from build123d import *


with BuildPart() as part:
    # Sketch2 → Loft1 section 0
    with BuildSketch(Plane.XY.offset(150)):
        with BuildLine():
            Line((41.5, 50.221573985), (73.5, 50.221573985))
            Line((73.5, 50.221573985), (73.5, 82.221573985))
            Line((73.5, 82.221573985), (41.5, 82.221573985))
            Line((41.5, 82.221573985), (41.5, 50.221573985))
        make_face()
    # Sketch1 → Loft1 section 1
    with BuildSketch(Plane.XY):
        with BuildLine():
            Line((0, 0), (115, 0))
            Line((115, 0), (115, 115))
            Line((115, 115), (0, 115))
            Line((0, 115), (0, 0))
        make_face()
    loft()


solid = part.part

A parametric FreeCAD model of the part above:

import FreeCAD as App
import Part
import Sketcher
Q = App.Units.Quantity


def add_polygon(sketch, points):
    """Adds a closed chain of lines whose ends are joined by coincident constraints."""
    first, n = sketch.GeometryCount, len(points)
    for a, b in zip(points, points[1:] + points[:1]):
        sketch.addGeometry(Part.LineSegment(App.Vector(*a, 0), App.Vector(*b, 0)), False)
    for i in range(n):
        sketch.addConstraint(Sketcher.Constraint("Coincident", first + i, 2, first + (i + 1) % n, 1))

doc = App.newDocument("Part")
body = doc.addObject("PartDesign::Body", "Body")

# Sketch on XY plane
sketch1 = doc.addObject("Sketcher::SketchObject", "Sketch")
body.addObject(sketch1)
sketch1.AttachmentSupport = (doc.XY_Plane, [""])
sketch1.MapMode = "FlatFace"
sketch1.AttachmentOffset = App.Placement(App.Vector(0, 0, 150), App.Rotation())
add_polygon(sketch1, [(41.5, 50.221574), (73.5, 50.221574), (73.5, 82.221574), (41.5, 82.221574)])  # lines 0-3
sketch1.addConstraint([
    Sketcher.Constraint("Horizontal", 0),
    Sketcher.Constraint("Vertical", 1),
    Sketcher.Constraint("Horizontal", 2),
    Sketcher.Constraint("Vertical", 3),
    Sketcher.Constraint("Equal", 2, 1),
    Sketcher.Constraint("DistanceX", 0, 1, 0, 2, Q("32 mm")),
    Sketcher.Constraint("DistanceX", -1, 1, 0, 2, Q("73.5 mm")),
    Sketcher.Constraint("DistanceY", -1, 1, 0, 2, Q("50.221574 mm")),
])

# Sketch on XY plane
sketch2 = doc.addObject("Sketcher::SketchObject", "Sketch001")
body.addObject(sketch2)
sketch2.AttachmentSupport = (doc.XY_Plane, [""])
sketch2.MapMode = "FlatFace"
add_polygon(sketch2, [(0, 0), (115, 0), (115, 115), (0, 115)])  # lines 0-3
sketch2.addConstraint([
    Sketcher.Constraint("Horizontal", 0),
    Sketcher.Constraint("Vertical", 1),
    Sketcher.Constraint("Horizontal", 2),
    Sketcher.Constraint("Vertical", 3),
    Sketcher.Constraint("Coincident", 3, 2, -1, 1),
    Sketcher.Constraint("Equal", 2, 1),
    Sketcher.Constraint("DistanceX", 0, 1, 0, 2, Q("115 mm")),
])

additiveloft = doc.addObject("PartDesign::AdditiveLoft", "AdditiveLoft")
body.addObject(additiveloft)
additiveloft.Profile = sketch1
additiveloft.Sections = [sketch2]

doc.recompute()
